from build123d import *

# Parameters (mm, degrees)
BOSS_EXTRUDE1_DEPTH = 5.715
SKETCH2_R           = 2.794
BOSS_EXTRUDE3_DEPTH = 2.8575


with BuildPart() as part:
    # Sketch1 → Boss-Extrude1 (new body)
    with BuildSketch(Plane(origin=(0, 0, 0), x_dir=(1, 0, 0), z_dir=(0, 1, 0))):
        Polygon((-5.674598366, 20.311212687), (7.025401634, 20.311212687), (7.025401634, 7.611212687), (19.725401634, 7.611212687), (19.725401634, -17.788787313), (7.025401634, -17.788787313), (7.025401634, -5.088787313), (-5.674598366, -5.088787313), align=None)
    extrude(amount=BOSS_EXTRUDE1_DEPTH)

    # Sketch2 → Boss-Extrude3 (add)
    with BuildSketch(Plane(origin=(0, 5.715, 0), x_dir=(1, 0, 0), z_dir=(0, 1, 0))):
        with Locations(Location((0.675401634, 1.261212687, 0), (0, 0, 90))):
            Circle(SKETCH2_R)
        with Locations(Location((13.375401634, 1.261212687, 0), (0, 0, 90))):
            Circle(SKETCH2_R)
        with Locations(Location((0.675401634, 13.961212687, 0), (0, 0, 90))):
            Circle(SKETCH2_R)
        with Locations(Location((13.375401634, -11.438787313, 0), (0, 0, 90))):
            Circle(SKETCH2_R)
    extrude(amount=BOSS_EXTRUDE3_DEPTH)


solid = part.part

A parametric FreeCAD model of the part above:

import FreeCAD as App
import Part
import Sketcher
from FreeCAD import Vector
Q = App.Units.Quantity


def add_polygon(sketch, points):
    """Adds a closed chain of lines whose ends are joined by coincident constraints."""
    first, n = sketch.GeometryCount, len(points)
    for a, b in zip(points, points[1:] + points[:1]):
        sketch.addGeometry(Part.LineSegment(App.Vector(*a, 0), App.Vector(*b, 0)), False)
    for i in range(n):
        sketch.addConstraint(Sketcher.Constraint("Coincident", first + i, 2, first + (i + 1) % n, 1))

doc = App.newDocument("Part")
params = doc.addObject("Spreadsheet::Sheet", "Params")
for row, (alias, value) in enumerate([
    ("sketch1_height", "1 in"),
    ("sketch1_width", "0.5 in"),
    ("pad1_length", "0.225 in"),
    ("sketch2_diameter", "0.22 in"),
    ("pad2_length", "0.1125 in"),
], start=1):
    params.set(f"A{row}", alias)
    params.set(f"B{row}", "=" + value)
    params.setAlias(f"B{row}", alias)

body = doc.addObject("PartDesign::Body", "Body")

sketch1 = doc.addObject("Sketcher::SketchObject", "Sketch")
body.addObject(sketch1)
sketch1.AttachmentSupport = (doc.XZ_Plane, [""])
sketch1.MapMode = "FlatFace"
add_polygon(sketch1, [(7, -20), (-6, -20), (-6, 5), (7, 5), (7, 18), (20, 18), (20, -8), (7, -8)])
sketch1.addConstraint([
    Sketcher.Constraint("Horizontal", 0),
    Sketcher.Constraint("Vertical", 1),
    Sketcher.Constraint("Horizontal", 2),
    Sketcher.Constraint("Vertical", 3),
    Sketcher.Constraint("Horizontal", 4),
    Sketcher.Constraint("Vertical", 5),
    Sketcher.Constraint("Horizontal", 6),
    Sketcher.Constraint("Vertical", 7),
    Sketcher.Constraint("Vertical", 3, 2, 6, 2),
    Sketcher.Constraint("Equal", 2, 4),
    Sketcher.Constraint("Equal", 6, 3),
    Sketcher.Constraint("Equal", 1, 5),
    Sketcher.Constraint("DistanceY", 1, 1, 1, 2, Q("1 in")),
    Sketcher.Constraint("DistanceX", 0, 2, 0, 1, Q("0.5 in")),
    Sketcher.Constraint("DistanceX", 0, 2, -1, 1, 5.674598),
    Sketcher.Constraint("DistanceY", 0, 2, -1, 1, 20.311213),
])
sketch1.setExpression("Constraints[20]", "Params.sketch1_height")
sketch1.setExpression("Constraints[21]", "Params.sketch1_width")
pad1 = doc.addObject("PartDesign::Pad", "Pad")
body.addObject(pad1)
pad1.Profile = sketch1
pad1.setExpression("Length", "Params.pad1_length")
pad1.Reversed = True

sketch2 = doc.addObject("Sketcher::SketchObject", "Sketch001")
body.addObject(sketch2)
sketch2.AttachmentSupport = (doc.XZ_Plane, [""])
sketch2.MapMode = "FlatFace"
sketch2.AttachmentOffset = App.Placement(Vector(0, 0, -0.225 * 25.4), App.Rotation())
sketch2.addGeometry([
    Part.Circle(Vector(0.7, -1.3, 0), Vector(0, 0, 1), 2.8),
    Part.Circle(Vector(13.4, -1.3, 0), Vector(0, 0, 1), 2.8),
    Part.Circle(Vector(0.7, -14, 0), Vector(0, 0, 1), 2.8),
    Part.Circle(Vector(13.4, 11.4, 0), Vector(0, 0, 1), 2.8),
], False)
sketch2.addConstraint([
    Sketcher.Constraint("Equal", 0, 1),
    Sketcher.Constraint("Equal", 1, 2),
    Sketcher.Constraint("Equal", 2, 3),
    Sketcher.Constraint("Horizontal", 0, 3, 1, 3),
    Sketcher.Constraint("Vertical", 0, 3, 2, 3),
    Sketcher.Constraint("Vertical", 1, 3, 3, 3),
    Sketcher.Constraint("Diameter", 0, Q("0.22 in")),
    Sketcher.Constraint("DistanceY", 2, 3, 3, 3, Q("1 in")),
    Sketcher.Constraint("DistanceX", 0, 3, 1, 3, Q("0.5 in")),
    Sketcher.Constraint("DistanceY", 2, 3, 0, 3, Q("0.5 in")),
    Sketcher.Constraint("DistanceX", -1, 1, 0, 3, 0.675402),
    Sketcher.Constraint("DistanceY", 0, 3, -1, 1, 1.261213),
])
sketch2.setExpression("Constraints[6]", "Params.sketch2_diameter")
pad2 = doc.addObject("PartDesign::Pad", "Pad001")
body.addObject(pad2)
pad2.Profile = sketch2
pad2.setExpression("Length", "Params.pad2_length")
pad2.Reversed = True

doc.recompute()
